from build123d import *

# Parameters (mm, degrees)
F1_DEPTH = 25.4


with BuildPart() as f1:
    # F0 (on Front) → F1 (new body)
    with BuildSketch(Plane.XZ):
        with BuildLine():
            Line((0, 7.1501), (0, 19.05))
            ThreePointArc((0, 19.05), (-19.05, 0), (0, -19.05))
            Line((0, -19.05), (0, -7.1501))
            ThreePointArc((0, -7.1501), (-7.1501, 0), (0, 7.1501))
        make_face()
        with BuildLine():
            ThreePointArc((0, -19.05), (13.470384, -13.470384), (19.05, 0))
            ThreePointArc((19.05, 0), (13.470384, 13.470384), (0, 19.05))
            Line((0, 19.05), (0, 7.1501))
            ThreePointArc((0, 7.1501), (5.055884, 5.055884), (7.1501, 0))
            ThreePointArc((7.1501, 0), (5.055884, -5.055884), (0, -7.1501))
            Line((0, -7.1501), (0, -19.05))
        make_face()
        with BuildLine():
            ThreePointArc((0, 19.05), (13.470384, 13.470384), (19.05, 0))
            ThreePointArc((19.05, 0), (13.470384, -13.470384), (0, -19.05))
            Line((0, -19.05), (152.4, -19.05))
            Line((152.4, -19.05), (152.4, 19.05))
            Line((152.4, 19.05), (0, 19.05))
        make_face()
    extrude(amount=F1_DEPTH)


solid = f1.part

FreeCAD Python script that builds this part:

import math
import FreeCAD as App
import Part
import Sketcher
Q = App.Units.Quantity

doc = App.newDocument("Part")
body = doc.addObject("PartDesign::Body", "Body")

# Sketch on XZ plane
sketch1 = body.newObject("Sketcher::SketchObject", "Sketch")
sketch1.AttachmentSupport = (doc.getObject("XZ_Plane"), [""])
sketch1.MapMode = "FlatFace"
sketch1.addGeometry([
    Part.ArcOfCircle(Part.Circle(App.Vector(0, 0, 0), App.Vector(0, 0, 1), 19), math.radians(90), math.radians(270)),  # 0
    Part.LineSegment(App.Vector(0, -19, 0), App.Vector(152, -19, 0)),  # 1
    Part.LineSegment(App.Vector(152, -19, 0), App.Vector(152, 19, 0)),  # 2
    Part.LineSegment(App.Vector(152, 19, 0), App.Vector(0, 19, 0)),  # 3
    Part.ArcOfCircle(Part.Circle(App.Vector(0, 0, 0), App.Vector(0, 0, 1), 7), math.radians(90), math.radians(270)),  # 4
    Part.ArcOfCircle(Part.Circle(App.Vector(0, 0, 0), App.Vector(0, 0, 1), 7), math.radians(0), math.radians(90)),  # 5
    Part.ArcOfCircle(Part.Circle(App.Vector(0, 0, 0), App.Vector(0, 0, 1), 7), math.radians(-90), math.radians(0)),  # 6
], False)
sketch1.addConstraint([
    Sketcher.Constraint("Tangent", 0, 2, 1, 1),
    Sketcher.Constraint("Coincident", 1, 2, 2, 1),
    Sketcher.Constraint("Coincident", 2, 2, 3, 1),
    Sketcher.Constraint("Tangent", 3, 2, 0, 1),
    Sketcher.Constraint("Tangent", 4, 1, 5, 2),
    Sketcher.Constraint("Tangent", 5, 1, 6, 2),
    Sketcher.Constraint("Tangent", 6, 1, 4, 2),
    Sketcher.Constraint("Horizontal", 1),
    Sketcher.Constraint("Vertical", 2),
    Sketcher.Constraint("Horizontal", 3),
    Sketcher.Constraint("Coincident", 0, 3, -1, 1),
    Sketcher.Constraint("Coincident", 4, 3, -1, 1),
    Sketcher.Constraint("PointOnObject", 4, 1, -2),
    Sketcher.Constraint("PointOnObject", 5, 1, -1),
    Sketcher.Constraint("PointOnObject", 6, 1, -2),
    Sketcher.Constraint("DistanceX", 1, 1, 1, 2, Q("6 in")),
    Sketcher.Constraint("Radius", 0, Q("0.75 in")),
    Sketcher.Constraint("Radius", 4, Q("0.2815 in")),
])
pad1 = body.newObject("PartDesign::Pad", "Pad")
pad1.Profile = sketch1
pad1.Length = Q("1 in")

doc.recompute()
